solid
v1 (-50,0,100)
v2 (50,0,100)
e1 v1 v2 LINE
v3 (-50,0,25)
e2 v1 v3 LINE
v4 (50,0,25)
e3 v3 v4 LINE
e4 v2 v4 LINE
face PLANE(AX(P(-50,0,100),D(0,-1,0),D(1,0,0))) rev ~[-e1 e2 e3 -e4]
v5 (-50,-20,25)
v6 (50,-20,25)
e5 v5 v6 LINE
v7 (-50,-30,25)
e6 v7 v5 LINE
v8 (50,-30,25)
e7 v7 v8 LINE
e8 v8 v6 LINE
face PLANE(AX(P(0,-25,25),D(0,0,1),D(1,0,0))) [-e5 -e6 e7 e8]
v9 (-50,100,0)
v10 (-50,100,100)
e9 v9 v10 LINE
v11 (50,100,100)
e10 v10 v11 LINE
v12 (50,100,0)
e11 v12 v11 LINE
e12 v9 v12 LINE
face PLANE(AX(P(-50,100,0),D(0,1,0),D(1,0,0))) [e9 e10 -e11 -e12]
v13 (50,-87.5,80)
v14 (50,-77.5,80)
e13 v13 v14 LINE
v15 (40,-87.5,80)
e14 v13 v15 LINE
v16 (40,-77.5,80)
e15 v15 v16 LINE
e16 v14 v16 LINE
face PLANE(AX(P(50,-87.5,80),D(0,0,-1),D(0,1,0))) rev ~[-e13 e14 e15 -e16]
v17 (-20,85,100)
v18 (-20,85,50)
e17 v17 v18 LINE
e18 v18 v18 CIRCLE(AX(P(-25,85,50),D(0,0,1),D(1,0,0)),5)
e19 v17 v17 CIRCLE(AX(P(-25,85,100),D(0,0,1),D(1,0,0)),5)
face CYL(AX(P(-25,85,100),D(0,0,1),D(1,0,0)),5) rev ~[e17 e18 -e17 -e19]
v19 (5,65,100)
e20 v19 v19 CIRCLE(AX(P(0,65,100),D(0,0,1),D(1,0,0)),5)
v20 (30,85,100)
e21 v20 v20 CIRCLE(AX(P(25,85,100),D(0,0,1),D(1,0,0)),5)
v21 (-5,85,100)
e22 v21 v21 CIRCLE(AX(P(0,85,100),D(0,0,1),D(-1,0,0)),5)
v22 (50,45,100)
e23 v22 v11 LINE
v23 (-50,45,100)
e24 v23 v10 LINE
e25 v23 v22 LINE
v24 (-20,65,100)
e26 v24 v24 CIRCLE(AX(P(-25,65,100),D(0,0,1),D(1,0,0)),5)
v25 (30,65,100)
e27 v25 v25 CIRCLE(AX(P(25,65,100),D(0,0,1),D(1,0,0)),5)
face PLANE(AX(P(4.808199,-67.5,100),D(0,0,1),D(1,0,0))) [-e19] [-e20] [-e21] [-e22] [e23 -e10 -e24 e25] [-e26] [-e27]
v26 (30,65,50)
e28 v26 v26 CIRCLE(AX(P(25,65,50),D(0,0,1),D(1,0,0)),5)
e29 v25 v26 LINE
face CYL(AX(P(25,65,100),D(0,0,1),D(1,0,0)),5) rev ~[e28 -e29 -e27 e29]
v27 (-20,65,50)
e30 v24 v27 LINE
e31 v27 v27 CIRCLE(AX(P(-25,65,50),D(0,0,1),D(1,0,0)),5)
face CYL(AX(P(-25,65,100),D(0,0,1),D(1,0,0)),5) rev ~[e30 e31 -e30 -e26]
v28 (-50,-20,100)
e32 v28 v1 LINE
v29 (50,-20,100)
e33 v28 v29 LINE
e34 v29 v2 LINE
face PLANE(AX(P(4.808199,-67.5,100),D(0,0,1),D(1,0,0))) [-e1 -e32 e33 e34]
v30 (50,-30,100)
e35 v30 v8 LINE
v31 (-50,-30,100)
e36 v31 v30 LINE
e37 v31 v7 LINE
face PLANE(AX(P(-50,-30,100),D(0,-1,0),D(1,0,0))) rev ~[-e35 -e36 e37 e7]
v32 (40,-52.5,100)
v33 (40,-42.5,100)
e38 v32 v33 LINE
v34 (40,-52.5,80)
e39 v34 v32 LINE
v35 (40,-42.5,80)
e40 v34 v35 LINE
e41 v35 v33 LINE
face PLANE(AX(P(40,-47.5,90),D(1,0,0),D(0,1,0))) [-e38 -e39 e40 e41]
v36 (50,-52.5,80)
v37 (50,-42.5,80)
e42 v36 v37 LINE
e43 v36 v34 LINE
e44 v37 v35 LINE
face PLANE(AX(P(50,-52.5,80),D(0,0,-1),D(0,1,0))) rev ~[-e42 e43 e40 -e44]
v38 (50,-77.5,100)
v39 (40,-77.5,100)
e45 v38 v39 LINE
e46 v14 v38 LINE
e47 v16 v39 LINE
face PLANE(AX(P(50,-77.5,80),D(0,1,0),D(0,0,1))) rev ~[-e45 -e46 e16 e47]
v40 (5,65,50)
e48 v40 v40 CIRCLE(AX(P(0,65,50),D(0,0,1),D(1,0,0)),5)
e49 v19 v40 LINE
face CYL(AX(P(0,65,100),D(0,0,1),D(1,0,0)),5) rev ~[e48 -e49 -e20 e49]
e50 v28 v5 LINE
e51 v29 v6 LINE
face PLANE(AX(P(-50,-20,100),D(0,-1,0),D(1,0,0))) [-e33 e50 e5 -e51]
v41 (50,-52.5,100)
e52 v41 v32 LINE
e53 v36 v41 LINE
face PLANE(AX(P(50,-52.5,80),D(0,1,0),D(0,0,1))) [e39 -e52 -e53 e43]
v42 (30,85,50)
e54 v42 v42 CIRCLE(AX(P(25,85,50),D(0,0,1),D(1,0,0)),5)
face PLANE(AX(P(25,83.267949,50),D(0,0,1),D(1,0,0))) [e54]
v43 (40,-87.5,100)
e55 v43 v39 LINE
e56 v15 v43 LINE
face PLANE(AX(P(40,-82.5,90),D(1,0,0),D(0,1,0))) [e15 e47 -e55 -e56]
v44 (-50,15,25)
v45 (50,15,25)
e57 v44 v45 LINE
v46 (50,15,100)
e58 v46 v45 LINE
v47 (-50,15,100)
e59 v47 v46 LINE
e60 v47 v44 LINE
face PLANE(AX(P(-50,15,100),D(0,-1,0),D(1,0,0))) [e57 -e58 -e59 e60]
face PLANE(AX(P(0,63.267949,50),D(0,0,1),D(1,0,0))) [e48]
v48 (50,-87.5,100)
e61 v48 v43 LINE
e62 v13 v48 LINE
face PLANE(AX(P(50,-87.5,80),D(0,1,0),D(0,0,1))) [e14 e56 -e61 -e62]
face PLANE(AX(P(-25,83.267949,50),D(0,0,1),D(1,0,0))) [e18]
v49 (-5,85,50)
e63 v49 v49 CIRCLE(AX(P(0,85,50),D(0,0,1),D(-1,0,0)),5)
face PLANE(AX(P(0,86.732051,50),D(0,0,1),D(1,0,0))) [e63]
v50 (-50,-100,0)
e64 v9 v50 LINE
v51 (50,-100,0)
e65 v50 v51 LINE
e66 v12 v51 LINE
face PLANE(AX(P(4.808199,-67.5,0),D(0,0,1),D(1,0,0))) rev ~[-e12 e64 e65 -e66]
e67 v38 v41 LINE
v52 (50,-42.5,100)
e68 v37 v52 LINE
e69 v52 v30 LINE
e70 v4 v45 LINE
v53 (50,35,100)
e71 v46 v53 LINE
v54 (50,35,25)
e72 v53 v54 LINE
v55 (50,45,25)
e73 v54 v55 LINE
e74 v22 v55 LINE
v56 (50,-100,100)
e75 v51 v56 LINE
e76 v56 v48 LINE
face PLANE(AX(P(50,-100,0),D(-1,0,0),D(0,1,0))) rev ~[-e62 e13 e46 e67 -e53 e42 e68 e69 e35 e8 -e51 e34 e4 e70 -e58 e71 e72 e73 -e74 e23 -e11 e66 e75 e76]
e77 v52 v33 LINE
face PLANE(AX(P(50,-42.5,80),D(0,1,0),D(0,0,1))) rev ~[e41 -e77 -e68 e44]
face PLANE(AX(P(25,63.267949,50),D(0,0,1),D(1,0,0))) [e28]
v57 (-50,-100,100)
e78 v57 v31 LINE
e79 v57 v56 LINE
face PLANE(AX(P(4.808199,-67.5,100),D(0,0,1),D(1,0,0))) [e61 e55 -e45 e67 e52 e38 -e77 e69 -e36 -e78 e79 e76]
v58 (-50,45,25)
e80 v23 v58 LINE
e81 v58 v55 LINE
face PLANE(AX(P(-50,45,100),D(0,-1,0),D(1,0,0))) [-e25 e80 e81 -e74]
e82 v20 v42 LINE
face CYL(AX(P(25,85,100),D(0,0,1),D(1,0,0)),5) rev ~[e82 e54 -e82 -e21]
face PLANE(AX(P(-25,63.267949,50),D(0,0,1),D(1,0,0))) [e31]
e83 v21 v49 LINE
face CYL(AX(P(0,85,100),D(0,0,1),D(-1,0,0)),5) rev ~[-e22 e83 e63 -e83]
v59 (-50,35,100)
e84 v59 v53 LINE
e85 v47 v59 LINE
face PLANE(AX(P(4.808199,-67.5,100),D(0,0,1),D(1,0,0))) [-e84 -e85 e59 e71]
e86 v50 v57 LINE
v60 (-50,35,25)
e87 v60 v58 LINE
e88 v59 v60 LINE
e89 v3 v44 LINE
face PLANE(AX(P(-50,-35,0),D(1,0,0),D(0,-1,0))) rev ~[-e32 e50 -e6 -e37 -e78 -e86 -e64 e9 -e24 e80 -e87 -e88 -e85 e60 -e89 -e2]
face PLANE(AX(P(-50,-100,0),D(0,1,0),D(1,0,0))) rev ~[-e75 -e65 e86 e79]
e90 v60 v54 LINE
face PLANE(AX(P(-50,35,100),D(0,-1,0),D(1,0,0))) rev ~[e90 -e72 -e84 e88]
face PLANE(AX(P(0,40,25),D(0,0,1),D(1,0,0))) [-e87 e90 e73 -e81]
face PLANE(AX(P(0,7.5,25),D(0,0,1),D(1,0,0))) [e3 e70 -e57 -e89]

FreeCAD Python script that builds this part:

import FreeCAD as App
import Part
import Sketcher
Q = App.Units.Quantity

doc = App.newDocument("Part")
body = doc.addObject("PartDesign::Body", "Body")

# Sketch on XY plane
sketch1 = body.newObject("Sketcher::SketchObject", "Sketch")
sketch1.AttachmentSupport = (doc.getObject("XY_Plane"), [""])
sketch1.MapMode = "FlatFace"
sketch1.addGeometry([
    Part.LineSegment(App.Vector(-50, 100, 0), App.Vector(-50, -35, 0)),
    Part.LineSegment(App.Vector(-50, -35, 0), App.Vector(50, -35, 0)),
    Part.LineSegment(App.Vector(50, -35, 0), App.Vector(50, 100, 0)),
    Part.LineSegment(App.Vector(50, 100, 0), App.Vector(-50, 100, 0)),
], False)
sketch1.addConstraint([
    Sketcher.Constraint("Coincident", 0, 2, 1, 1),
    Sketcher.Constraint("Coincident", 1, 2, 2, 1),
    Sketcher.Constraint("Coincident", 2, 2, 3, 1),
    Sketcher.Constraint("Coincident", 3, 2, 0, 1),
    Sketcher.Constraint("Vertical", 0),
    Sketcher.Constraint("Horizontal", 1),
    Sketcher.Constraint("Vertical", 2),
    Sketcher.Constraint("Horizontal", 3),
    Sketcher.Constraint("DistanceX", 1, 1, 1, 2, Q("100 mm")),
    Sketcher.Constraint("DistanceY", 0, 2, 0, 1, Q("135 mm")),
    Sketcher.Constraint("DistanceX", 0, 2, -1, 1, Q("50 mm")),
    Sketcher.Constraint("DistanceY", 0, 2, -1, 1, Q("35 mm")),
])
pad1 = body.newObject("PartDesign::Pad", "Pad")
pad1.Profile = sketch1
pad1.Length = 100

# Sketch on XY plane
sketch2 = body.newObject("Sketcher::SketchObject", "Sketch001")
sketch2.AttachmentSupport = (doc.getObject("XY_Plane"), [""])
sketch2.MapMode = "FlatFace"
sketch2.addGeometry([
    Part.LineSegment(App.Vector(50, -35, 0), App.Vector(-50, -35, 0)),
    Part.LineSegment(App.Vector(-50, -35, 0), App.Vector(-50, -100, 0)),
    Part.LineSegment(App.Vector(-50, -100, 0), App.Vector(50, -100, 0)),
    Part.LineSegment(App.Vector(50, -100, 0), App.Vector(50, -35, 0)),
], False)
sketch2.addConstraint([
    Sketcher.Constraint("Coincident", 0, 2, 1, 1),
    Sketcher.Constraint("Coincident", 1, 2, 2, 1),
    Sketcher.Constraint("Coincident", 2, 2, 3, 1),
    Sketcher.Constraint("Coincident", 3, 2, 0, 1),
    Sketcher.Constraint("Horizontal", 0),
    Sketcher.Constraint("Vertical", 1),
    Sketcher.Constraint("Horizontal", 2),
    Sketcher.Constraint("Vertical", 3),
    Sketcher.Constraint("DistanceX", 0, 2, 0, 1, Q("100 mm")),
    Sketcher.Constraint("DistanceY", 1, 2, 1, 1, Q("65 mm")),
    Sketcher.Constraint("DistanceX", 0, 2, -1, 1, Q("50 mm")),
    Sketcher.Constraint("DistanceY", 0, 2, -1, 1, Q("35 mm")),
])
pad2 = body.newObject("PartDesign::Pad", "Pad001")
pad2.Profile = sketch2
pad2.Length = 100

# Sketch on XY plane
sketch3 = body.newObject("Sketcher::SketchObject", "Sketch002")
sketch3.AttachmentSupport = (doc.getObject("XY_Plane"), [""])
sketch3.MapMode = "FlatFace"
sketch3.AttachmentOffset = App.Placement(App.Vector(0, 0, 100), App.Rotation())
sketch3.addGeometry([
    Part.LineSegment(App.Vector(-50, -20, 0), App.Vector(-50, -30, 0)),  # 0
    Part.LineSegment(App.Vector(-50, -30, 0), App.Vector(50, -30, 0)),  # 1
    Part.LineSegment(App.Vector(50, -30, 0), App.Vector(50, -20, 0)),  # 2
    Part.LineSegment(App.Vector(50, -20, 0), App.Vector(-50, -20, 0)),  # 3
    Part.LineSegment(App.Vector(-50, 15, 0), App.Vector(-50, 0, 0)),  # 4
    Part.LineSegment(App.Vector(-50, 0, 0), App.Vector(50, 0, 0)),  # 5
    Part.LineSegment(App.Vector(50, 0, 0), App.Vector(50, 15, 0)),  # 6
    Part.LineSegment(App.Vector(50, 15, 0), App.Vector(-50, 15, 0)),  # 7
    Part.LineSegment(App.Vector(-50, 45, 0), App.Vector(-50, 35, 0)),  # 8
    Part.LineSegment(App.Vector(-50, 35, 0), App.Vector(50, 35, 0)),  # 9
    Part.LineSegment(App.Vector(50, 35, 0), App.Vector(50, 45, 0)),  # 10
    Part.LineSegment(App.Vector(50, 45, 0), App.Vector(-50, 45, 0)),  # 11
], False)
sketch3.addConstraint([
    Sketcher.Constraint("Coincident", 0, 2, 1, 1),
    Sketcher.Constraint("Coincident", 1, 2, 2, 1),
    Sketcher.Constraint("Coincident", 2, 2, 3, 1),
    Sketcher.Constraint("Coincident", 3, 2, 0, 1),
    Sketcher.Constraint("Coincident", 4, 2, 5, 1),
    Sketcher.Constraint("Coincident", 5, 2, 6, 1),
    Sketcher.Constraint("Coincident", 6, 2, 7, 1),
    Sketcher.Constraint("Coincident", 7, 2, 4, 1),
    Sketcher.Constraint("Coincident", 8, 2, 9, 1),
    Sketcher.Constraint("Coincident", 9, 2, 10, 1),
    Sketcher.Constraint("Coincident", 10, 2, 11, 1),
    Sketcher.Constraint("Coincident", 11, 2, 8, 1),
    Sketcher.Constraint("Vertical", 0),
    Sketcher.Constraint("Horizontal", 1),
    Sketcher.Constraint("Vertical", 2),
    Sketcher.Constraint("Horizontal", 3),
    Sketcher.Constraint("Vertical", 4),
    Sketcher.Constraint("Horizontal", 5),
    Sketcher.Constraint("Vertical", 6),
    Sketcher.Constraint("Horizontal", 7),
    Sketcher.Constraint("Vertical", 8),
    Sketcher.Constraint("Horizontal", 9),
    Sketcher.Constraint("Vertical", 10),
    Sketcher.Constraint("Horizontal", 11),
    Sketcher.Constraint("Symmetric", 4, 2, 5, 2, -1, 1),
    Sketcher.Constraint("Vertical", 3, 2, 4, 2),
    Sketcher.Constraint("Vertical", 2, 2, 5, 2),
    Sketcher.Constraint("Vertical", 7, 2, 8, 2),
    Sketcher.Constraint("Vertical", 6, 2, 9, 2),
    Sketcher.Constraint("Equal", 2, 8),
    Sketcher.Constraint("DistanceX", 1, 1, 1, 2, Q("100 mm")),
    Sketcher.Constraint("DistanceY", 0, 2, 0, 1, Q("10 mm")),
    Sketcher.Constraint("DistanceY", 4, 2, 4, 1, Q("15 mm")),
    Sketcher.Constraint("DistanceY", 0, 2, -1, 1, Q("30 mm")),
    Sketcher.Constraint("DistanceY", -1, 1, 8, 2, Q("35 mm")),
])
pocket1 = body.newObject("PartDesign::Pocket", "Pocket")
pocket1.Profile = sketch3
pocket1.Length = 75

# Sketch on XY plane
sketch4 = body.newObject("Sketcher::SketchObject", "Sketch003")
sketch4.AttachmentSupport = (doc.getObject("XY_Plane"), [""])
sketch4.MapMode = "FlatFace"
sketch4.AttachmentOffset = App.Placement(App.Vector(0, 0, 100), App.Rotation())
sketch4.addGeometry([
    Part.Circle(App.Vector(25, 65, 0), App.Vector(0, 0, 1), 5),  # 0
    Part.Circle(App.Vector(0, 65, 0), App.Vector(0, 0, 1), 5),  # 1
    Part.Circle(App.Vector(-25, 65, 0), App.Vector(0, 0, 1), 5),  # 2
    Part.Circle(App.Vector(-25, 85, 0), App.Vector(0, 0, 1), 5),  # 3
    Part.Circle(App.Vector(0, 85, 0), App.Vector(0, 0, 1), 5),  # 4
    Part.Circle(App.Vector(25, 85, 0), App.Vector(0, 0, 1), 5),  # 5
], False)
sketch4.addConstraint([
    Sketcher.Constraint("Equal", 0, 1),
    Sketcher.Constraint("Equal", 1, 2),
    Sketcher.Constraint("Equal", 2, 3),
    Sketcher.Constraint("Equal", 3, 4),
    Sketcher.Constraint("Equal", 4, 5),
    Sketcher.Constraint("Symmetric", 0, 3, 2, 3, -2),
    Sketcher.Constraint("Symmetric", 3, 3, 5, 3, -2),
    Sketcher.Constraint("PointOnObject", 1, 3, -2),
    Sketcher.Constraint("PointOnObject", 4, 3, -2),
    Sketcher.Constraint("Horizontal", 0, 3, 1, 3),
    Sketcher.Constraint("Horizontal", 3, 3, 4, 3),
    Sketcher.Constraint("Vertical", 2, 3, 3, 3),
    Sketcher.Constraint("Diameter", 0, Q("10 mm")),
    Sketcher.Constraint("DistanceX", -1, 1, 0, 3, Q("25 mm")),
    Sketcher.Constraint("DistanceY", -1, 1, 0, 3, Q("65 mm")),
    Sketcher.Constraint("DistanceY", -1, 1, 3, 3, Q("85 mm")),
])
pocket2 = body.newObject("PartDesign::Pocket", "Pocket001")
pocket2.Profile = sketch4
pocket2.Length = 50

# Sketch on YZ plane
sketch5 = body.newObject("Sketcher::SketchObject", "Sketch004")
sketch5.AttachmentSupport = (doc.getObject("YZ_Plane"), [""])
sketch5.MapMode = "FlatFace"
sketch5.AttachmentOffset = App.Placement(App.Vector(0, 0, 50), App.Rotation())
sketch5.addGeometry([
    Part.LineSegment(App.Vector(-87.5, 100, 0), App.Vector(-87.5, 80, 0)),  # 0
    Part.LineSegment(App.Vector(-87.5, 80, 0), App.Vector(-77.5, 80, 0)),  # 1
    Part.LineSegment(App.Vector(-77.5, 80, 0), App.Vector(-77.5, 100, 0)),  # 2
    Part.LineSegment(App.Vector(-77.5, 100, 0), App.Vector(-87.5, 100, 0)),  # 3
    Part.LineSegment(App.Vector(-52.5, 100, 0), App.Vector(-52.5, 80, 0)),  # 4
    Part.LineSegment(App.Vector(-52.5, 80, 0), App.Vector(-42.5, 80, 0)),  # 5
    Part.LineSegment(App.Vector(-42.5, 80, 0), App.Vector(-42.5, 100, 0)),  # 6
    Part.LineSegment(App.Vector(-42.5, 100, 0), App.Vector(-52.5, 100, 0)),  # 7
], False)
sketch5.addConstraint([
    Sketcher.Constraint("Coincident", 0, 2, 1, 1),
    Sketcher.Constraint("Coincident", 1, 2, 2, 1),
    Sketcher.Constraint("Coincident", 2, 2, 3, 1),
    Sketcher.Constraint("Coincident", 3, 2, 0, 1),
    Sketcher.Constraint("Coincident", 4, 2, 5, 1),
    Sketcher.Constraint("Coincident", 5, 2, 6, 1),
    Sketcher.Constraint("Coincident", 6, 2, 7, 1),
    Sketcher.Constraint("Coincident", 7, 2, 4, 1),
    Sketcher.Constraint("Vertical", 0),
    Sketcher.Constraint("Horizontal", 1),
    Sketcher.Constraint("Vertical", 2),
    Sketcher.Constraint("Horizontal", 3),
    Sketcher.Constraint("Vertical", 4),
    Sketcher.Constraint("Horizontal", 5),
    Sketcher.Constraint("Vertical", 6),
    Sketcher.Constraint("Horizontal", 7),
    Sketcher.Constraint("Horizontal", 1, 2, 4, 2),
    Sketcher.Constraint("Horizontal", 3, 2, 6, 2),
    Sketcher.Constraint("Equal", 3, 5),
    Sketcher.Constraint("DistanceX", 1, 1, 1, 2, Q("10 mm")),
    Sketcher.Constraint("DistanceY", 0, 2, 0, 1, Q("20 mm")),
    Sketcher.Constraint("DistanceY", -1, 1, 0, 2, Q("80 mm")),
    Sketcher.Constraint("DistanceX", 1, 2, 4, 2, Q("25 mm")),
    Sketcher.Constraint("DistanceX", 0, 2, -1, 1, Q("87.5 mm")),
])
pocket3 = body.newObject("PartDesign::Pocket", "Pocket002")
pocket3.Profile = sketch5
pocket3.Length = 10

doc.recompute()
